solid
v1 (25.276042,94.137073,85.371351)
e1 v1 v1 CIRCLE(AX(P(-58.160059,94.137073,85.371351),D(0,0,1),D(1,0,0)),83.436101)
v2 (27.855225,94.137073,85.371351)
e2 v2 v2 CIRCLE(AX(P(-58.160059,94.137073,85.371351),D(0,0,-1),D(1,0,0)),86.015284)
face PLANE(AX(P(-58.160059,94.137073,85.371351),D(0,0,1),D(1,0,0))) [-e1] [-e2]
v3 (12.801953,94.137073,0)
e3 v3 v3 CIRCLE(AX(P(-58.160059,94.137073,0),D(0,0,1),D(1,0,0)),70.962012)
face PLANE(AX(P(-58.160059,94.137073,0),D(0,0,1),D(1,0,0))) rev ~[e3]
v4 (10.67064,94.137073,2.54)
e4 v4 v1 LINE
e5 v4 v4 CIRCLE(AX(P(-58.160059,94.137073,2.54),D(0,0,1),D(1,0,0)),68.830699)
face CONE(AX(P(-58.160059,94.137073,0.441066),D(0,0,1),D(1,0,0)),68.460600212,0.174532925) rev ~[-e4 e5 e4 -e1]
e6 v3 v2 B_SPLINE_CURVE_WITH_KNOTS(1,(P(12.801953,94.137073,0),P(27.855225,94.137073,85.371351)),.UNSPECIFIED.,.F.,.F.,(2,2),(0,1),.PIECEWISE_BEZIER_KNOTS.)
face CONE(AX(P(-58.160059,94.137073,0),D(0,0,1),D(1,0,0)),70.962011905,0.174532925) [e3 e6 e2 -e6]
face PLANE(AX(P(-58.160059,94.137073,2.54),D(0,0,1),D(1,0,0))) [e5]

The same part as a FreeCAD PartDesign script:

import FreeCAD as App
import Part
import Sketcher

V = App.Vector
Q = App.Units.Quantity


def faces_at(feature, points):
    """Names of the faces that lie closest to the given points."""
    faces = feature.Shape.Faces
    near = lambda p: min(range(len(faces)), key=lambda i: faces[i].distToShape(Part.Vertex(*p))[0])
    return sorted({f"Face{near(p) + 1}" for p in points})

doc = App.newDocument("Part")
body = doc.addObject("PartDesign::Body", "Body")

# Sketch on XY plane
sketch1 = doc.addObject("Sketcher::SketchObject", "Sketch")
body.addObject(sketch1)
sketch1.AttachmentSupport = (doc.XY_Plane, [""])
sketch1.MapMode = "FlatFace"
sketch1.addGeometry(Part.Circle(V(-58, 94, 0), V(0, 0, 1), 71), False)
sketch1.addConstraint(Sketcher.Constraint("Diameter", 0, 141.924024))
sketch1.addConstraint(Sketcher.Constraint("DistanceX", 0, 3, -1, 1, 58.160059))
sketch1.addConstraint(Sketcher.Constraint("DistanceY", -1, 1, 0, 3, 94.137073))
pad1 = doc.addObject("PartDesign::Pad", "Pad")
body.addObject(pad1)
pad1.Profile = sketch1
pad1.Length = 85.371351
pad1.TaperAngle = 10
doc.recompute()

thickness = doc.addObject("PartDesign::Thickness", "Thickness")
body.addObject(thickness)
thickness.Base = (pad1, faces_at(pad1, [(-58.16, 94.137, 85.371)]))
thickness.Value = Q("0.1 in")
thickness.Reversed = True
thickness.Join = "Intersection"

doc.recompute()
